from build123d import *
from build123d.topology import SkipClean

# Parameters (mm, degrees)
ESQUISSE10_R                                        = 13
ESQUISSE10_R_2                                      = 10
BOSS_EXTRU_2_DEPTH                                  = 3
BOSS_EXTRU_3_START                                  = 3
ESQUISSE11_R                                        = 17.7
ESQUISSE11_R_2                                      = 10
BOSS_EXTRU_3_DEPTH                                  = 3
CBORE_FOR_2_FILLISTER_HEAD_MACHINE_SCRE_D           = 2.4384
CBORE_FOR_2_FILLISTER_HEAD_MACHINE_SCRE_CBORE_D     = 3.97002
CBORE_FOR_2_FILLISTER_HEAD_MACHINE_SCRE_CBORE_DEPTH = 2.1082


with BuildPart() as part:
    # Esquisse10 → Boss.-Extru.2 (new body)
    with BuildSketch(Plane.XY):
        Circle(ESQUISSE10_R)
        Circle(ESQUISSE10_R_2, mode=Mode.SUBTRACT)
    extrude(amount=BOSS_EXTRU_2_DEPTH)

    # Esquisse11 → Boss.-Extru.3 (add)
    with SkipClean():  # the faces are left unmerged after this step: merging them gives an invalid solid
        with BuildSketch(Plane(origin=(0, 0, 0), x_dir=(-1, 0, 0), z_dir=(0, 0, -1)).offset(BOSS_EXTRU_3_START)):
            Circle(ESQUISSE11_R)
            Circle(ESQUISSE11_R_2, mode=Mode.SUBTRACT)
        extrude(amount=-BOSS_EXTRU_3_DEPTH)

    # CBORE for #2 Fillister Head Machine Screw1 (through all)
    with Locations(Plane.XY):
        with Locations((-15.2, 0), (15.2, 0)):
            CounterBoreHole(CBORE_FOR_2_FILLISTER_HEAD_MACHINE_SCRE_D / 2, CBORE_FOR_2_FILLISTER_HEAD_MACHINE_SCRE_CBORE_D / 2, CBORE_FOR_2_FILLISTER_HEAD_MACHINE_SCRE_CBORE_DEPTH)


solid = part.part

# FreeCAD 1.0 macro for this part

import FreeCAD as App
import Part
import Sketcher
from FreeCAD import Vector
Q = App.Units.Quantity

doc = App.newDocument("Part")
body = doc.addObject("PartDesign::Body", "Body")

# Sketch on XY plane
sketch1 = body.newObject("Sketcher::SketchObject", "Sketch")
sketch1.AttachmentSupport = (doc.getObject("XY_Plane"), [""])
sketch1.MapMode = "FlatFace"
sketch1.addGeometry(Part.Circle(Vector(0, 0, 0), Vector(0, 0, 1), 13), False)
sketch1.addGeometry(Part.Circle(Vector(0, 0, 0), Vector(0, 0, 1), 10), False)
sketch1.addConstraint(Sketcher.Constraint("Coincident", 0, 3, -1, 1))
sketch1.addConstraint(Sketcher.Constraint("Coincident", 1, 3, -1, 1))
sketch1.addConstraint(Sketcher.Constraint("Diameter", 0, Q("26 mm")))
sketch1.addConstraint(Sketcher.Constraint("Diameter", 1, Q("20 mm")))
pad1 = body.newObject("PartDesign::Pad", "Pad")
pad1.Profile = sketch1
pad1.Length = 3

# Sketch on XY plane
sketch2 = body.newObject("Sketcher::SketchObject", "Sketch001")
sketch2.AttachmentSupport = (doc.getObject("XY_Plane"), [""])
sketch2.MapMode = "FlatFace"
sketch2.AttachmentOffset = App.Placement(Vector(0, 0, -3), App.Rotation())
sketch2.addGeometry(Part.Circle(Vector(0, 0, 0), Vector(0, 0, 1), 18), False)
sketch2.addGeometry(Part.Circle(Vector(0, 0, 0), Vector(0, 0, 1), 10), False)
sketch2.addConstraint(Sketcher.Constraint("Coincident", 0, 3, -1, 1))
sketch2.addConstraint(Sketcher.Constraint("Coincident", 1, 3, -1, 1))
sketch2.addConstraint(Sketcher.Constraint("Diameter", 1, Q("20 mm")))
sketch2.addConstraint(Sketcher.Constraint("Diameter", 0, Q("35.4 mm")))
pad2 = body.newObject("PartDesign::Pad", "Pad001")
pad2.Profile = sketch2
pad2.Length = 3

# Sketch on XY plane
sketch3 = body.newObject("Sketcher::SketchObject", "Sketch002")
sketch3.AttachmentSupport = (doc.getObject("XY_Plane"), [""])
sketch3.MapMode = "FlatFace"
sketch3.addGeometry(Part.Circle(Vector(-15.2, 0, 0), Vector(0, 0, 1), 1.2), False)
sketch3.addGeometry(Part.Circle(Vector(15.2, 0, 0), Vector(0, 0, 1), 1.2), False)
sketch3.addConstraint(Sketcher.Constraint("Equal", 0, 1))
sketch3.addConstraint(Sketcher.Constraint("Symmetric", 0, 3, 1, 3, -1, 1))
sketch3.addConstraint(Sketcher.Constraint("PointOnObject", 0, 3, -1))
sketch3.addConstraint(Sketcher.Constraint("Diameter", 0, Q("2.4384 mm")))
sketch3.addConstraint(Sketcher.Constraint("DistanceX", 0, 3, -1, 1, Q("15.2 mm")))
doc.recompute()
hole = body.newObject("PartDesign::Hole", "Hole")
hole.Profile = sketch3
hole.ThreadType = "None"
hole.Diameter = 2.4384
hole.DepthType = "ThroughAll"
hole.HoleCutType = "Counterbore"
hole.HoleCutDiameter = 3.97002
hole.HoleCutDepth = 2.1082

doc.recompute()
